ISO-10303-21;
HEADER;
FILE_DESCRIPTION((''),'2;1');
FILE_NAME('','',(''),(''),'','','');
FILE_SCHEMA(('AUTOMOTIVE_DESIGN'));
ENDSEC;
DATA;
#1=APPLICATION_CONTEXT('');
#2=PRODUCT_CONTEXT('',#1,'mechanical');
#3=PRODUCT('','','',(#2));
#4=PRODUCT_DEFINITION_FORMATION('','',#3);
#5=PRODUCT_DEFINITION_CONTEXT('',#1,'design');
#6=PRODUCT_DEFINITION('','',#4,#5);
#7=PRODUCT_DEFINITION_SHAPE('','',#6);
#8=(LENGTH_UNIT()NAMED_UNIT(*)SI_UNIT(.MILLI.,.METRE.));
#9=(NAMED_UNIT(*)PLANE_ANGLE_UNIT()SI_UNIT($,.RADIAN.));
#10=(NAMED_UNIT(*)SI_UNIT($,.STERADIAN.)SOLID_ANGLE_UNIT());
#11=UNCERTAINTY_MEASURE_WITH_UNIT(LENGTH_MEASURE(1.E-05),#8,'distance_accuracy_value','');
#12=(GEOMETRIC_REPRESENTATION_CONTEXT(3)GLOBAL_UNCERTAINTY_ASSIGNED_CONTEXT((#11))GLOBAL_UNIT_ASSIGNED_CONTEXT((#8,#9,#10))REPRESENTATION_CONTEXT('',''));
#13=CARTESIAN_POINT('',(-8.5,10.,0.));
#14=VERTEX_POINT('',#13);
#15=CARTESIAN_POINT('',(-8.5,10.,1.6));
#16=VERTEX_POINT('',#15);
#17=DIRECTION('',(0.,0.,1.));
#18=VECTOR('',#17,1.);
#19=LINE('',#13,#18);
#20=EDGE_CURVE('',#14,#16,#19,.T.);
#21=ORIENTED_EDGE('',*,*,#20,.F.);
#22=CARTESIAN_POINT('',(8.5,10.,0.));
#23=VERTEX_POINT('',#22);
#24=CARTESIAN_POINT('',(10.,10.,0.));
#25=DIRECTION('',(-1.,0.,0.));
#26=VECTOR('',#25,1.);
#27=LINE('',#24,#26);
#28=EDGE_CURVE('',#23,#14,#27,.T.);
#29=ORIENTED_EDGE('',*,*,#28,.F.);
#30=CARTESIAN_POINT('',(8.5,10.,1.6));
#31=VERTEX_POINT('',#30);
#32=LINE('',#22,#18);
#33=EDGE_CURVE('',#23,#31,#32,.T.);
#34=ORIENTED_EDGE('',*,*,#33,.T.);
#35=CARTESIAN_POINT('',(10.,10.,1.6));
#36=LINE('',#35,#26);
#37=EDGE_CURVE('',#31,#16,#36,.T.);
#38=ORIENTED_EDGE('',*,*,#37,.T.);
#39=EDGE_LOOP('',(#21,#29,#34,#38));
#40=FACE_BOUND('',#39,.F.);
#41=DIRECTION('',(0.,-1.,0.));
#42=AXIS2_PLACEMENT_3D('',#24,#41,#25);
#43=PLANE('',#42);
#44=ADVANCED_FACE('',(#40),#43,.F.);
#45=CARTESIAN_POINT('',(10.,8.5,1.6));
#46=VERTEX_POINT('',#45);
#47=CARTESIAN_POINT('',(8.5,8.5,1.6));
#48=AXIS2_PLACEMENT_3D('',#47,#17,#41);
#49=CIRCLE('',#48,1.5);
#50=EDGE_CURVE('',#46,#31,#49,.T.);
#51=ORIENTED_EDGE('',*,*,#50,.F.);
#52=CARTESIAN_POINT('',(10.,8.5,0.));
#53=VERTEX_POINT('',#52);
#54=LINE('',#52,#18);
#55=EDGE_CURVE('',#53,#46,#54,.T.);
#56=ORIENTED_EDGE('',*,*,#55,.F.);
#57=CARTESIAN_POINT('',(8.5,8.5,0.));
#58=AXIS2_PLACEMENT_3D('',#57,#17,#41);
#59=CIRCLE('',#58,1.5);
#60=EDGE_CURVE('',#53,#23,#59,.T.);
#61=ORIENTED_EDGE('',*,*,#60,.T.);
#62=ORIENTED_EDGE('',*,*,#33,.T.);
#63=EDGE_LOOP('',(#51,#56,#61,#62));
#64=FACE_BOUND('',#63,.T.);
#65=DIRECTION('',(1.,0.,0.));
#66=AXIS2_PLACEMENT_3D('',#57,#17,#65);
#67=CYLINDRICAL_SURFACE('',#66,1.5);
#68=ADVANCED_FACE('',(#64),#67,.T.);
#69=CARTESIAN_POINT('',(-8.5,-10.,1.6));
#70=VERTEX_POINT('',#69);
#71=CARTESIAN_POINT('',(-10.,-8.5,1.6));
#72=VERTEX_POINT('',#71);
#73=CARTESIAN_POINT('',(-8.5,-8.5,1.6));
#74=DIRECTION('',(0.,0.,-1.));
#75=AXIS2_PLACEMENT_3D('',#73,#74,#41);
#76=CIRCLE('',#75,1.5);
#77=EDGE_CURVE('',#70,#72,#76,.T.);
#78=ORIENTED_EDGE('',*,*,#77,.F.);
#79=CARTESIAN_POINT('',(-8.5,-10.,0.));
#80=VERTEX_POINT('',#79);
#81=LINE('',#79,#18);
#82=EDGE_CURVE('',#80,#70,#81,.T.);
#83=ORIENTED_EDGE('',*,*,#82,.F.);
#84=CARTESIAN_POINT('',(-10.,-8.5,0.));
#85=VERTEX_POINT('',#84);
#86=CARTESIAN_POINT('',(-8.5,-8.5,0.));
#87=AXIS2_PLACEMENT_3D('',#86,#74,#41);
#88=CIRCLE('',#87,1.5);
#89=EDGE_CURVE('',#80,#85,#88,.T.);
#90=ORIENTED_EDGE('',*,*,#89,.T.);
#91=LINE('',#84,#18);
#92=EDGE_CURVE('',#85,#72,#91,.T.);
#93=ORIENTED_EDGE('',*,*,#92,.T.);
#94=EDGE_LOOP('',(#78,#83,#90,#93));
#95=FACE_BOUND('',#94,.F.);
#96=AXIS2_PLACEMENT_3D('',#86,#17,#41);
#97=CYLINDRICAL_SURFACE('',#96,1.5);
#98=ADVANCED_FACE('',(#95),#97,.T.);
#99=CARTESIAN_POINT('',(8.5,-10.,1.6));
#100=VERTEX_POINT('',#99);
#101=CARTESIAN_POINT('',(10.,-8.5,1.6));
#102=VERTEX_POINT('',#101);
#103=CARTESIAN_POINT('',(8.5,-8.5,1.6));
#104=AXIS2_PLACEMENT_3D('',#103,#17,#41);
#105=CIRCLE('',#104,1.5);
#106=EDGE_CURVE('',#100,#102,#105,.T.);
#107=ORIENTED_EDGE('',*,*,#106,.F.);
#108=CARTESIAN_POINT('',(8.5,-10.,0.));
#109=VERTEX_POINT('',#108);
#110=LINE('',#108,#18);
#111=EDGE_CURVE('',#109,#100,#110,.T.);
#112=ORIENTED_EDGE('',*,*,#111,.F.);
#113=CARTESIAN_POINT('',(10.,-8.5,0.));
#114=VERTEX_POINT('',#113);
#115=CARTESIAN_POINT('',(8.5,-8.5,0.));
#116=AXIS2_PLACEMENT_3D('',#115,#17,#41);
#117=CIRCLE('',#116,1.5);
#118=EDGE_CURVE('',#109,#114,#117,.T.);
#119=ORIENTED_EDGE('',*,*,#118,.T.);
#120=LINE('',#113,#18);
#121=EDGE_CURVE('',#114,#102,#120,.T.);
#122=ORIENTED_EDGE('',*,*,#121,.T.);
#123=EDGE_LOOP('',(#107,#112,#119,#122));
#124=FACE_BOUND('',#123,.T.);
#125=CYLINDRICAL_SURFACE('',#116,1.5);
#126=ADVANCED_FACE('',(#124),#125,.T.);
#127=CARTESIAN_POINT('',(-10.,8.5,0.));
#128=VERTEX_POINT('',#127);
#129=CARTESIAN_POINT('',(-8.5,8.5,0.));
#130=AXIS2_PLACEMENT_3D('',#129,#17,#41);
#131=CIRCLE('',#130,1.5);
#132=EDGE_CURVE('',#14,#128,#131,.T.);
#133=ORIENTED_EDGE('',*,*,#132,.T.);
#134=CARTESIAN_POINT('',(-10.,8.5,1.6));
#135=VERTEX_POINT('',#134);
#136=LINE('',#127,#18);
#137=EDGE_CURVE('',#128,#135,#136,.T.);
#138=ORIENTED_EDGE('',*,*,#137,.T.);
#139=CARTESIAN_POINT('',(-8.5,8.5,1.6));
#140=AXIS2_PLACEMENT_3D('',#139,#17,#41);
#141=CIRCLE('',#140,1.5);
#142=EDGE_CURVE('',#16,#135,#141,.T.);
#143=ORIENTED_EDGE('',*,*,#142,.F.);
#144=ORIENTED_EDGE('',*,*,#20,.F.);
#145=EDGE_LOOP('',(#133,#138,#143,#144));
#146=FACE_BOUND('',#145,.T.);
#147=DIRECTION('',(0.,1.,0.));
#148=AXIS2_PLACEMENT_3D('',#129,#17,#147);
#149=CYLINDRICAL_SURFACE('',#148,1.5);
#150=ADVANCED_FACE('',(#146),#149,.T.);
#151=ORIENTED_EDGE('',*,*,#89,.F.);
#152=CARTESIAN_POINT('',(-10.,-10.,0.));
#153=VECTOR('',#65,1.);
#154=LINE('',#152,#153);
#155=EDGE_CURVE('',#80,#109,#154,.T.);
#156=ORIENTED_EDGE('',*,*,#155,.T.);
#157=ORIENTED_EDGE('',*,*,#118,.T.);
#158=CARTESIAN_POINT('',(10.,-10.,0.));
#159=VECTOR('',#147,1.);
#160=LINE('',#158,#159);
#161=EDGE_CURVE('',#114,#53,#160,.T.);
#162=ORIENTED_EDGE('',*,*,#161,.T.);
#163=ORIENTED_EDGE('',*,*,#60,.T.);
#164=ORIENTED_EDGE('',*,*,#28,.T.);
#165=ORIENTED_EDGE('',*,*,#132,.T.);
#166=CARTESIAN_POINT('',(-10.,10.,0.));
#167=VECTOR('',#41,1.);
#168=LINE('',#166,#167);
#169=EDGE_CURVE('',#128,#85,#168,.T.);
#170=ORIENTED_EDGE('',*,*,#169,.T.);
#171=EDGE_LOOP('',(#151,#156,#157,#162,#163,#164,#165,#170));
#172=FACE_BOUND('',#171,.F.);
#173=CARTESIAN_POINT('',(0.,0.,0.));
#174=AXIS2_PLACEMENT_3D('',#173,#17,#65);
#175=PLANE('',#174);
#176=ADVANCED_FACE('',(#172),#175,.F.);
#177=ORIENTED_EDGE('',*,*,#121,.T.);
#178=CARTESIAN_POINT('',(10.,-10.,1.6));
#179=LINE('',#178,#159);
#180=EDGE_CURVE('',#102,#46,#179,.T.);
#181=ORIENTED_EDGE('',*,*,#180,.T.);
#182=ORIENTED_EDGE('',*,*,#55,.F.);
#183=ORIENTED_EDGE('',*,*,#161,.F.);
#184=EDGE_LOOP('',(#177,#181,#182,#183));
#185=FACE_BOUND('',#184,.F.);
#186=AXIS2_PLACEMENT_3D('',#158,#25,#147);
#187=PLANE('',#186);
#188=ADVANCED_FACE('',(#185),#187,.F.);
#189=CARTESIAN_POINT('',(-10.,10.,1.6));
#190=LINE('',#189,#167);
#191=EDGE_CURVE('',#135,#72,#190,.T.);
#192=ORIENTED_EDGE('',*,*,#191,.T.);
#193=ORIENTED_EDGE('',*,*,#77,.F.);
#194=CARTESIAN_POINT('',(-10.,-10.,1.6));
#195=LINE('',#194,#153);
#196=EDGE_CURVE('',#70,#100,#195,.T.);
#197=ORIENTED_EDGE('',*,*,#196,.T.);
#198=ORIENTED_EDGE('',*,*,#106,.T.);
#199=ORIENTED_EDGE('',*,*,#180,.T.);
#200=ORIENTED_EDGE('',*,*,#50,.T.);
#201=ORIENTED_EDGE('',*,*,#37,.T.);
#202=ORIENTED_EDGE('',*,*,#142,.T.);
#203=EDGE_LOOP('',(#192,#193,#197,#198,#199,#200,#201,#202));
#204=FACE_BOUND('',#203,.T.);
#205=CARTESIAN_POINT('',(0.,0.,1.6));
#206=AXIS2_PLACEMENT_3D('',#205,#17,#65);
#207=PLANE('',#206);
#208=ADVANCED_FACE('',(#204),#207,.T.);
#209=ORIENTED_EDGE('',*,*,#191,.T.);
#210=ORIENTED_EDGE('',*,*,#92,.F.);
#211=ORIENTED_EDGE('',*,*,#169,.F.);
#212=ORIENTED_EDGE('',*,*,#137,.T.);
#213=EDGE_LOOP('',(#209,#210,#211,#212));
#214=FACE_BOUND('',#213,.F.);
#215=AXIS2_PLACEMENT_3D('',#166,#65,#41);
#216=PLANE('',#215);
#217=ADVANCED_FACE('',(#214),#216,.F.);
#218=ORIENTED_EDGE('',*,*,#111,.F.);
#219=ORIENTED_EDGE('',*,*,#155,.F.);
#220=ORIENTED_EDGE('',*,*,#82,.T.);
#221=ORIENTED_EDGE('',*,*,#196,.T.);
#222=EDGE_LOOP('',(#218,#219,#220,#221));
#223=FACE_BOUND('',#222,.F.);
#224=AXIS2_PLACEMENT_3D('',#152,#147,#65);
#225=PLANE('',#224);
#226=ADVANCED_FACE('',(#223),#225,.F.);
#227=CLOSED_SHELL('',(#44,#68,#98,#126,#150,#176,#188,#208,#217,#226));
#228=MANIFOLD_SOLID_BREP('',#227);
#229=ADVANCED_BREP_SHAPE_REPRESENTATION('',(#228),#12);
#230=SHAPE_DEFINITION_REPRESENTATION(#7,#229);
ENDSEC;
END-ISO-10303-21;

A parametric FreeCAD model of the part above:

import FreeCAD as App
import Part
import Sketcher
from FreeCAD import Vector
Q = App.Units.Quantity


def edges_at(feature, points):
    """Names of the edges that pass closest to the given points."""
    edges = feature.Shape.Edges
    near = lambda p: min(range(len(edges)), key=lambda i: edges[i].distToShape(Part.Vertex(*p))[0])
    return sorted({f"Edge{near(p) + 1}" for p in points})


def add_polygon(sketch, points):
    """Adds a closed chain of lines whose ends are joined by coincident constraints."""
    first, n = sketch.GeometryCount, len(points)
    for a, b in zip(points, points[1:] + points[:1]):
        sketch.addGeometry(Part.LineSegment(App.Vector(*a, 0), App.Vector(*b, 0)), False)
    for i in range(n):
        sketch.addConstraint(Sketcher.Constraint("Coincident", first + i, 2, first + (i + 1) % n, 1))

doc = App.newDocument("Part")
body = doc.addObject("PartDesign::Body", "Body")

# Sketch on XY plane
sketch1 = body.newObject("Sketcher::SketchObject", "Sketch")
sketch1.AttachmentSupport = (doc.getObject("XY_Plane"), [""])
sketch1.MapMode = "FlatFace"
add_polygon(sketch1, [(-10, 10), (-10, -10), (10, -10), (10, 10)])  # lines 0-3
sketch1.addConstraint(Sketcher.Constraint("Vertical", 0))
sketch1.addConstraint(Sketcher.Constraint("Horizontal", 1))
sketch1.addConstraint(Sketcher.Constraint("Vertical", 2))
sketch1.addConstraint(Sketcher.Constraint("Horizontal", 3))
sketch1.addConstraint(Sketcher.Constraint("Symmetric", 0, 2, 2, 2, -1, 1))
sketch1.addConstraint(Sketcher.Constraint("Equal", 3, 0))
sketch1.addConstraint(Sketcher.Constraint("DistanceX", 0, 2, -1, 1, Q("10 mm")))
pad1 = body.newObject("PartDesign::Pad", "Pad")
pad1.Profile = sketch1
pad1.Length = 1.6
doc.recompute()

fillet = body.newObject("PartDesign::Fillet", "Fillet")
fillet.Base = (pad1, edges_at(pad1, [
    (-10, -10, 0.8),
    (10, -10, 0.8),
    (10, 10, 0.8),
    (-10, 10, 0.8),
]))
fillet.Radius = 1.5

doc.recompute()
